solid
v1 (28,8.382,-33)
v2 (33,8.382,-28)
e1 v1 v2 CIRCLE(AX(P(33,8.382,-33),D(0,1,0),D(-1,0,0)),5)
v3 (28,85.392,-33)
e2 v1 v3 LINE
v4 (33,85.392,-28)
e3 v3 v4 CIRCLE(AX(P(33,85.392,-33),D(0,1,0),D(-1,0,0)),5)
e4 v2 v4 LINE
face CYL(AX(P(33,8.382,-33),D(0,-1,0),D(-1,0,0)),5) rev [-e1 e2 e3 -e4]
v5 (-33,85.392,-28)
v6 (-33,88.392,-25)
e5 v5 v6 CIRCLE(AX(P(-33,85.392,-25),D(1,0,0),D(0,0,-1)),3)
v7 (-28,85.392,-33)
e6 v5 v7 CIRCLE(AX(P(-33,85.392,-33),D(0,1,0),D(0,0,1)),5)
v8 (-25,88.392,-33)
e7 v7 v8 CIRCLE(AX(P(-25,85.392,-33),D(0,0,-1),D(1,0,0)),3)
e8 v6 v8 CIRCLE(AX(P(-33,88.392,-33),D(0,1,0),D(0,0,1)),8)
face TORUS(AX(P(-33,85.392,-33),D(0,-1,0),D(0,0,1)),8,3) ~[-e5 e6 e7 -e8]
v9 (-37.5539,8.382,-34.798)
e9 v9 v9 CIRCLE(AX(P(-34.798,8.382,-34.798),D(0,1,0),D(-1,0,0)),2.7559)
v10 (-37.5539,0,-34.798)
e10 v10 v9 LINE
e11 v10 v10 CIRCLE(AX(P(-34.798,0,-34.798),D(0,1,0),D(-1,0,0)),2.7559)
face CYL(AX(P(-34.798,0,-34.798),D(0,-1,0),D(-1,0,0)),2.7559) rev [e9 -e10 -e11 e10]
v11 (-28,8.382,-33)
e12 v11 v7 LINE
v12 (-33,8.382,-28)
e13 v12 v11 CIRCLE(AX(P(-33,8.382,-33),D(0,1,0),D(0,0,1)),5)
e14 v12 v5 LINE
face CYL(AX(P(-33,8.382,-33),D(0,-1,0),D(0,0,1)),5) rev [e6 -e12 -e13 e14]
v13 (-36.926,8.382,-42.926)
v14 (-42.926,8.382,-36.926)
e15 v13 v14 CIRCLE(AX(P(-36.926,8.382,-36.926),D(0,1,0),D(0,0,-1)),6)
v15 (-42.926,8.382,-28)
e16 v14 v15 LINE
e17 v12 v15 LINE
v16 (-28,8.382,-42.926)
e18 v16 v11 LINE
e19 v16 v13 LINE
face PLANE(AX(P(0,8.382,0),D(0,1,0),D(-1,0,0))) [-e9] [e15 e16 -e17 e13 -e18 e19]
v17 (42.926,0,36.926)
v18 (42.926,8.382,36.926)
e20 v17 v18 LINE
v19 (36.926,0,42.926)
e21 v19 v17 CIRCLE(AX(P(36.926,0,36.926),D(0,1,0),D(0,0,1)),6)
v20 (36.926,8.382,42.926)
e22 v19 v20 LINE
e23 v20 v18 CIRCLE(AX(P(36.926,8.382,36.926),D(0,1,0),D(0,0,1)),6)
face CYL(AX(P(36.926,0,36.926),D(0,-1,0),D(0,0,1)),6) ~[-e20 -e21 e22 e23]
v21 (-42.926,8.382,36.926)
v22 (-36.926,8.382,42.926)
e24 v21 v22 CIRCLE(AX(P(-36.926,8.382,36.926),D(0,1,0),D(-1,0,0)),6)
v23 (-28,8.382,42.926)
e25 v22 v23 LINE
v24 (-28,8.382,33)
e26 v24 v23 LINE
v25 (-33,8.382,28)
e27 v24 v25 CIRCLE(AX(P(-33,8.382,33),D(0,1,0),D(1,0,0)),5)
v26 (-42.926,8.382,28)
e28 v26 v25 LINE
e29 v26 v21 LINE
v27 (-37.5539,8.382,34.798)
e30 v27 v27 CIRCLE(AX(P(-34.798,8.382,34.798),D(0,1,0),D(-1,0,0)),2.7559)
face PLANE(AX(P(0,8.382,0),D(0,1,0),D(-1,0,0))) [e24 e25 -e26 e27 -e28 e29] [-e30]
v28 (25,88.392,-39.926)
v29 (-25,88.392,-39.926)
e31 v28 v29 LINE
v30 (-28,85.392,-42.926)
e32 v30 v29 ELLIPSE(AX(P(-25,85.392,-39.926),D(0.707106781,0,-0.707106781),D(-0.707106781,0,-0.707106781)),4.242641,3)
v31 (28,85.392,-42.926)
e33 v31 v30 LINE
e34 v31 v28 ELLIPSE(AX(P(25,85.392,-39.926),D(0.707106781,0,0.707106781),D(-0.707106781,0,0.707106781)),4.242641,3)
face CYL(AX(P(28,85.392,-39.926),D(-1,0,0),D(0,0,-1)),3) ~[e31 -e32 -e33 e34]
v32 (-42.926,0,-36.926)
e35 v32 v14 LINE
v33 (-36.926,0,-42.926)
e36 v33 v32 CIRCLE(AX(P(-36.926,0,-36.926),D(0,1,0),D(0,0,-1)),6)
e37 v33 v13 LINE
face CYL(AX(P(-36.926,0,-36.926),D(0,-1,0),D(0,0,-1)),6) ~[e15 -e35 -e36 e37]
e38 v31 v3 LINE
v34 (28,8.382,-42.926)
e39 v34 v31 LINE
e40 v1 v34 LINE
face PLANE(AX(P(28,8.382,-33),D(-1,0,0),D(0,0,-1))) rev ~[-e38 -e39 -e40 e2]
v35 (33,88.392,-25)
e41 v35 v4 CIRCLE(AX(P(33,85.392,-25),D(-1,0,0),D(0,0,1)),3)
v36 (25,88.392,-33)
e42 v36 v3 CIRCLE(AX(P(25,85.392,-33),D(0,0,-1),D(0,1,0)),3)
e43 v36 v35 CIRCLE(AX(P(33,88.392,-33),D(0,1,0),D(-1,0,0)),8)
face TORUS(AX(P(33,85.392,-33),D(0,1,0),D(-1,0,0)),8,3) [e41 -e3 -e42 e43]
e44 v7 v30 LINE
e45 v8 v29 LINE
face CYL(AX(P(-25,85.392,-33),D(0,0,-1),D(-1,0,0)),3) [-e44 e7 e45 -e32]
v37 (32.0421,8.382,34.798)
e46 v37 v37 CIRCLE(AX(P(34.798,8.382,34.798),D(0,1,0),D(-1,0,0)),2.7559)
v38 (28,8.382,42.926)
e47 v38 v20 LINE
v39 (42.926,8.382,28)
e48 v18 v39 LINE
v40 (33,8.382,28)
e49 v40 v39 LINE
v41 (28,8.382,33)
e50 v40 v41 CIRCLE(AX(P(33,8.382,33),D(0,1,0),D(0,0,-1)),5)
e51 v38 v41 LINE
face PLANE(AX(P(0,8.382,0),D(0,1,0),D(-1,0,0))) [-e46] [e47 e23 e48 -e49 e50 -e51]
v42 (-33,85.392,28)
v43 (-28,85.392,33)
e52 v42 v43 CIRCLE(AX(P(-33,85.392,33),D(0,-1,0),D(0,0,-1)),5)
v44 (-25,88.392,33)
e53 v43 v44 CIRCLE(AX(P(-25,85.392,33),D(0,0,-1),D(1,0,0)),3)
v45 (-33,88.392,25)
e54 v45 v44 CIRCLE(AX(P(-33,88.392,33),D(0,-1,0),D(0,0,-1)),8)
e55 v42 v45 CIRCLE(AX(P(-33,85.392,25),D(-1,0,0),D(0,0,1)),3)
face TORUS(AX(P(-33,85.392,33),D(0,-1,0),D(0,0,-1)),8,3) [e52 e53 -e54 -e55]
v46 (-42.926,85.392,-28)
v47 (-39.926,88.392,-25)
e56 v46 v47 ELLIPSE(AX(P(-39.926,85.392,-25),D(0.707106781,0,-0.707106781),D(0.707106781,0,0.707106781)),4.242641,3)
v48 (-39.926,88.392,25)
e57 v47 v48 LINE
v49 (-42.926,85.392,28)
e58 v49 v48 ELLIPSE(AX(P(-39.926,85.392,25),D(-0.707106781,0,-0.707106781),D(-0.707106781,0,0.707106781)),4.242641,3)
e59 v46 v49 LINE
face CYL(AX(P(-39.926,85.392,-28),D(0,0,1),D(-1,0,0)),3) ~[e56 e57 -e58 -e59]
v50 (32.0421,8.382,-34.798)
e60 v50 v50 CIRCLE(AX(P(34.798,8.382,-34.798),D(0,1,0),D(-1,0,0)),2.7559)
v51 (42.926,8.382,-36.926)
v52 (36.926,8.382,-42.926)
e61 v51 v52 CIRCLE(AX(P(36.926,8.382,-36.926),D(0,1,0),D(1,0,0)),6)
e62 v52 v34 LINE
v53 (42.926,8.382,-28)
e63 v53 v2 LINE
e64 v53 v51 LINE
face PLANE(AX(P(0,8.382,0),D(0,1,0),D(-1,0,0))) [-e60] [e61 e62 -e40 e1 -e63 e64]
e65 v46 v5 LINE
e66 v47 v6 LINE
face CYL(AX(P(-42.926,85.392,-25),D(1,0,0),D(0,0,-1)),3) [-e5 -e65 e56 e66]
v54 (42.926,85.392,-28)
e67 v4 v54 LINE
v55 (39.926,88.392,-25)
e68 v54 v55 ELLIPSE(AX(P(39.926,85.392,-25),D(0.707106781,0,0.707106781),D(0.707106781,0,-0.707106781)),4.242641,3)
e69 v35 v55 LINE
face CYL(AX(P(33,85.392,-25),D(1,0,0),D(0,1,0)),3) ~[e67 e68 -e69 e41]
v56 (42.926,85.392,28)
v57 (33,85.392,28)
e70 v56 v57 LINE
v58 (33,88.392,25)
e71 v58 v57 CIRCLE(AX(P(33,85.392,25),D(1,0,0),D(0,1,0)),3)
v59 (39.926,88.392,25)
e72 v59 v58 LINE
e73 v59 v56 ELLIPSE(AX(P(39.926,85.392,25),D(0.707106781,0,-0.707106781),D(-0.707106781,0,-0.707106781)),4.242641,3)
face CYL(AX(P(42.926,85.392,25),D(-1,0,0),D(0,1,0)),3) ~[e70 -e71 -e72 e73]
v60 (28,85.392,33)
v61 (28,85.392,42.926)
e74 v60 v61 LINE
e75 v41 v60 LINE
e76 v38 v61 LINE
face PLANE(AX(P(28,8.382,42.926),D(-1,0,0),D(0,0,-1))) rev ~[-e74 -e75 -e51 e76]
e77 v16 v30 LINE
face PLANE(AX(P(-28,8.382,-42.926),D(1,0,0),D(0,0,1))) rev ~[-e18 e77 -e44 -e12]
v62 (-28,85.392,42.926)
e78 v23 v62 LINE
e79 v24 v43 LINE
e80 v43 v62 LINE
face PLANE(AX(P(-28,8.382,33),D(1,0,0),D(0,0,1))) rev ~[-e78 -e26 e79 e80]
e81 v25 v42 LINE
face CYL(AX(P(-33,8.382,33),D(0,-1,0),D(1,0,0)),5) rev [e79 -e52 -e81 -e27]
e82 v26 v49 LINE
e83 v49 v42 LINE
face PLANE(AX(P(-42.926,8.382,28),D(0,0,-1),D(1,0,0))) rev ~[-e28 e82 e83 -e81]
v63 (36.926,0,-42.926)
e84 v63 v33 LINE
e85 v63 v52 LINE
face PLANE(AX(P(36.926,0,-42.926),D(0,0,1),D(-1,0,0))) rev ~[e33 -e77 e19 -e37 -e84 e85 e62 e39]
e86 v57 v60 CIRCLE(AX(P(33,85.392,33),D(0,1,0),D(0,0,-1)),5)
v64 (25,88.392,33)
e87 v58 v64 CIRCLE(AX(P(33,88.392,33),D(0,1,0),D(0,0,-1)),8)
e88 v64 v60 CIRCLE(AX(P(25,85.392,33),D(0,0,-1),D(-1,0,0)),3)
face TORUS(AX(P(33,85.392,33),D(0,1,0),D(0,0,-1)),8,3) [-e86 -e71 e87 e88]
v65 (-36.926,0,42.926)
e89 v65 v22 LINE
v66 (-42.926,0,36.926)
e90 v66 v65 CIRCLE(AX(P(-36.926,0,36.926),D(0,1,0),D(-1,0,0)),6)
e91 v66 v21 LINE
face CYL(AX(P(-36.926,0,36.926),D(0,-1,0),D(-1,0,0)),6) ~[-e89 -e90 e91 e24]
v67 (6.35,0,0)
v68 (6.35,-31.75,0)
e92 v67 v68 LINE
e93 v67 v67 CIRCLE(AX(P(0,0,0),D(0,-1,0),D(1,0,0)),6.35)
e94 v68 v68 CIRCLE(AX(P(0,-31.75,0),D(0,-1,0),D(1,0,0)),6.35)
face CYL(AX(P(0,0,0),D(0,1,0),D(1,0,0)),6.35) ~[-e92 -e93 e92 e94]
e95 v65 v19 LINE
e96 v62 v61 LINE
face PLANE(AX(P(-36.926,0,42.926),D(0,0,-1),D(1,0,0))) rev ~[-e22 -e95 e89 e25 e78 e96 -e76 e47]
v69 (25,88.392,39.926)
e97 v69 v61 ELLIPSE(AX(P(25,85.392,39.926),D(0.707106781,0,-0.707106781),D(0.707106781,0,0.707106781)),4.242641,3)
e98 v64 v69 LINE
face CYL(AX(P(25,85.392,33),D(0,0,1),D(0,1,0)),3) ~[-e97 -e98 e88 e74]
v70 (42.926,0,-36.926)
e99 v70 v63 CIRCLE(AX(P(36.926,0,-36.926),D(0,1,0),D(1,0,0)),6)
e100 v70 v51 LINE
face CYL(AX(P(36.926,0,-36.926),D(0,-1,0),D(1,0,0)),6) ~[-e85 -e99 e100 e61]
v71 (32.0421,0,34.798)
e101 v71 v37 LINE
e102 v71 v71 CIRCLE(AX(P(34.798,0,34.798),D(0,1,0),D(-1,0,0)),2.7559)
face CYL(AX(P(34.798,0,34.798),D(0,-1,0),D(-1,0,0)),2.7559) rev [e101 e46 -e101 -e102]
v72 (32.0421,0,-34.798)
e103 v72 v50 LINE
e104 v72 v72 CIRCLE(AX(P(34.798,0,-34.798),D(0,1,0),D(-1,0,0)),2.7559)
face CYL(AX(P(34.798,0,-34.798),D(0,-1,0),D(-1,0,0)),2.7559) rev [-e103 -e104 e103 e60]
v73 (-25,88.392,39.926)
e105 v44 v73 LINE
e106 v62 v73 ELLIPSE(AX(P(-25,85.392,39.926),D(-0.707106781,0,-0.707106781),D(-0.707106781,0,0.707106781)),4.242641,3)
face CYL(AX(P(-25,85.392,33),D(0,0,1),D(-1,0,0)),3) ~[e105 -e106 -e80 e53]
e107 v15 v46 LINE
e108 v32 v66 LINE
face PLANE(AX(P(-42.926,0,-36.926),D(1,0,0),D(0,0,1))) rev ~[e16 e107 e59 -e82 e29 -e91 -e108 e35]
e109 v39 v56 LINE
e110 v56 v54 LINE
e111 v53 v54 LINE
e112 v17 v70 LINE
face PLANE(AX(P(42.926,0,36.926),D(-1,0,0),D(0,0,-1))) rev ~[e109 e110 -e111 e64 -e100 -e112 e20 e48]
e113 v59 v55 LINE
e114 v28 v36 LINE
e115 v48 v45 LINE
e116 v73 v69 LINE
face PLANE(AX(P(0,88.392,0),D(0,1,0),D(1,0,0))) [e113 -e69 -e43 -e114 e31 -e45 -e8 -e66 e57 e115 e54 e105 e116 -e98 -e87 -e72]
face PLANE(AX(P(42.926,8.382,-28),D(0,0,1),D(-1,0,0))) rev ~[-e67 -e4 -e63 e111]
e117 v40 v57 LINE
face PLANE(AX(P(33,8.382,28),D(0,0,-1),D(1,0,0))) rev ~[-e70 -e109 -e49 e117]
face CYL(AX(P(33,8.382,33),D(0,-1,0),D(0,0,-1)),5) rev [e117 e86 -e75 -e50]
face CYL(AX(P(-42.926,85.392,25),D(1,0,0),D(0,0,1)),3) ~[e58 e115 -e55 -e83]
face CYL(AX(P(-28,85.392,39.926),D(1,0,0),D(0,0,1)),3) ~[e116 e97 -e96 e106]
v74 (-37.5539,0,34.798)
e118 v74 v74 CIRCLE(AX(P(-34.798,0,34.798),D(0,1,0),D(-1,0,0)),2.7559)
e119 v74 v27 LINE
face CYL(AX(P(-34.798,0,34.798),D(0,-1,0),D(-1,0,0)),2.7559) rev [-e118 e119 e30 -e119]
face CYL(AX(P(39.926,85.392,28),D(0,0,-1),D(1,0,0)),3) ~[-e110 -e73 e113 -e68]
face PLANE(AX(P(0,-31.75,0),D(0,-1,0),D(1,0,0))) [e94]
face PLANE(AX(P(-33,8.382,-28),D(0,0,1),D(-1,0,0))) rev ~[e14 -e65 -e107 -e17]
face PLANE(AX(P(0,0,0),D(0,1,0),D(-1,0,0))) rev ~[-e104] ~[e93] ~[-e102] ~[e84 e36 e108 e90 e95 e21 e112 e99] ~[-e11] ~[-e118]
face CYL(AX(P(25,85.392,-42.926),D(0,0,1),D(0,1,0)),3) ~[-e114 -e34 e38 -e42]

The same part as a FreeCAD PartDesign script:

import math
import FreeCAD as App
import Part
import Sketcher

V = App.Vector
Q = App.Units.Quantity


def edges_at(feature, points):
    """Names of the edges that pass closest to the given points."""
    edges = feature.Shape.Edges
    near = lambda p: min(range(len(edges)), key=lambda i: edges[i].distToShape(Part.Vertex(*p))[0])
    return sorted({f"Edge{near(p) + 1}" for p in points})

doc = App.newDocument("Part")
body = doc.addObject("PartDesign::Body", "Body")

sketch1 = body.newObject("Sketcher::SketchObject", "Sketch")
sketch1.AttachmentSupport = (doc.getObject("XZ_Plane"), [""])
sketch1.MapMode = "FlatFace"
sketch1.addGeometry([
    Part.ArcOfCircle(Part.Circle(V(-36.926, 36.926, 0), V(0, 0, 1), 6), math.radians(90), math.radians(180)),
    Part.LineSegment(V(-36.926, 42.926, 0), V(36.926, 42.926, 0)),
    Part.ArcOfCircle(Part.Circle(V(36.926, 36.926, 0), V(0, 0, 1), 6), math.radians(0), math.radians(90)),
    Part.LineSegment(V(42.926, 36.926, 0), V(42.926, -36.926, 0)),
    Part.ArcOfCircle(Part.Circle(V(36.926, -36.926, 0), V(0, 0, 1), 6), math.radians(-90), math.radians(0)),
    Part.LineSegment(V(36.926, -42.926, 0), V(-36.926, -42.926, 0)),
    Part.ArcOfCircle(Part.Circle(V(-36.926, -36.926, 0), V(0, 0, 1), 6), math.radians(180), math.radians(270)),
    Part.LineSegment(V(-42.926, -36.926, 0), V(-42.926, 36.926, 0)),
    Part.Circle(V(34.798, -34.798, 0), V(0, 0, 1), 2.7559),
    Part.Circle(V(-34.798, -34.798, 0), V(0, 0, 1), 2.7559),
    Part.Circle(V(34.798, 34.798, 0), V(0, 0, 1), 2.7559),
    Part.Circle(V(-34.798, 34.798, 0), V(0, 0, 1), 2.7559),
], False)
sketch1.addConstraint([
    Sketcher.Constraint("Tangent", 0, 1, 1, 1),
    Sketcher.Constraint("Tangent", 1, 2, 2, 2),
    Sketcher.Constraint("Tangent", 2, 1, 3, 1),
    Sketcher.Constraint("Tangent", 3, 2, 4, 2),
    Sketcher.Constraint("Tangent", 4, 1, 5, 1),
    Sketcher.Constraint("Tangent", 5, 2, 6, 2),
    Sketcher.Constraint("Tangent", 6, 1, 7, 1),
    Sketcher.Constraint("Tangent", 7, 2, 0, 2),
    Sketcher.Constraint("Horizontal", 1),
    Sketcher.Constraint("Vertical", 3),
    Sketcher.Constraint("Horizontal", 5),
    Sketcher.Constraint("Vertical", 7),
    Sketcher.Constraint("Equal", 0, 2),
    Sketcher.Constraint("Equal", 2, 4),
    Sketcher.Constraint("Equal", 4, 6),
    Sketcher.Constraint("Equal", 8, 9),
    Sketcher.Constraint("Equal", 9, 10),
    Sketcher.Constraint("Equal", 10, 11),
    Sketcher.Constraint("Symmetric", 0, 3, 4, 3, -1, 1),
    Sketcher.Constraint("Symmetric", 9, 3, 10, 3, -1, 1),
    Sketcher.Constraint("Symmetric", 8, 3, 11, 3, -1, 1),
    Sketcher.Constraint("Symmetric", 8, 3, 9, 3, -2),
    Sketcher.Constraint("Equal", 5, 3),
    Sketcher.Constraint("Diameter", 8, Q("0.217 in")),
    Sketcher.Constraint("DistanceX", -1, 1, 8, 3, Q("1.37 in")),
    Sketcher.Constraint("DistanceY", 8, 3, -1, 1, Q("1.37 in")),
    Sketcher.Constraint("Radius", 0, 6.0),
    Sketcher.Constraint("DistanceY", -1, 1, 0, 1, Q("1.69 in")),
])
pad1 = body.newObject("PartDesign::Pad", "Pad")
pad1.Profile = sketch1
pad1.Length = Q("0.33 in")
pad1.Reversed = True

sketch2 = body.newObject("Sketcher::SketchObject", "Sketch001")
sketch2.AttachmentSupport = (doc.getObject("XZ_Plane"), [""])
sketch2.MapMode = "FlatFace"
sketch2.AttachmentOffset = App.Placement(V(0, 0, -0.33 * 25.4), App.Rotation())
sketch2.addGeometry([
    Part.LineSegment(V(33, 28, 0), V(42.926, 28, 0)),
    Part.LineSegment(V(42.926, 28, 0), V(42.926, -28, 0)),
    Part.LineSegment(V(42.926, -28, 0), V(33, -28, 0)),
    Part.ArcOfCircle(Part.Circle(V(33, -33, 0), V(0, 0, 1), 5), math.radians(90), math.radians(180)),
    Part.LineSegment(V(28, -33, 0), V(28, -42.926, 0)),
    Part.LineSegment(V(28, -42.926, 0), V(-28, -42.926, 0)),
    Part.LineSegment(V(-28, -42.926, 0), V(-28, -33, 0)),
    Part.ArcOfCircle(Part.Circle(V(-33, -33, 0), V(0, 0, 1), 5), math.radians(0), math.radians(90)),
    Part.LineSegment(V(-33, -28, 0), V(-42.926, -28, 0)),
    Part.LineSegment(V(-42.926, -28, 0), V(-42.926, 28, 0)),
    Part.LineSegment(V(-42.926, 28, 0), V(-33, 28, 0)),
    Part.ArcOfCircle(Part.Circle(V(-33, 33, 0), V(0, 0, 1), 5), math.radians(-90), math.radians(0)),
    Part.LineSegment(V(-28, 33, 0), V(-28, 42.926, 0)),
    Part.LineSegment(V(-28, 42.926, 0), V(28, 42.926, 0)),
    Part.LineSegment(V(28, 42.926, 0), V(28, 33, 0)),
    Part.ArcOfCircle(Part.Circle(V(33, 33, 0), V(0, 0, 1), 5), math.radians(180), math.radians(270)),
], False)
sketch2.addConstraint([
    Sketcher.Constraint("Coincident", 0, 2, 1, 1),
    Sketcher.Constraint("Coincident", 1, 2, 2, 1),
    Sketcher.Constraint("Tangent", 2, 2, 3, 1),
    Sketcher.Constraint("Tangent", 3, 2, 4, 1),
    Sketcher.Constraint("Coincident", 4, 2, 5, 1),
    Sketcher.Constraint("Coincident", 5, 2, 6, 1),
    Sketcher.Constraint("Tangent", 6, 2, 7, 1),
    Sketcher.Constraint("Tangent", 7, 2, 8, 1),
    Sketcher.Constraint("Coincident", 8, 2, 9, 1),
    Sketcher.Constraint("Coincident", 9, 2, 10, 1),
    Sketcher.Constraint("Tangent", 10, 2, 11, 1),
    Sketcher.Constraint("Tangent", 11, 2, 12, 1),
    Sketcher.Constraint("Coincident", 12, 2, 13, 1),
    Sketcher.Constraint("Coincident", 13, 2, 14, 1),
    Sketcher.Constraint("Tangent", 14, 2, 15, 1),
    Sketcher.Constraint("Tangent", 15, 2, 0, 1),
    Sketcher.Constraint("Horizontal", 0),
    Sketcher.Constraint("Vertical", 1),
    Sketcher.Constraint("Horizontal", 2),
    Sketcher.Constraint("Vertical", 4),
    Sketcher.Constraint("Horizontal", 5),
    Sketcher.Constraint("Vertical", 6),
    Sketcher.Constraint("Horizontal", 8),
    Sketcher.Constraint("Vertical", 9),
    Sketcher.Constraint("Horizontal", 10),
    Sketcher.Constraint("Vertical", 12),
    Sketcher.Constraint("Horizontal", 13),
    Sketcher.Constraint("Vertical", 14),
    Sketcher.Constraint("Equal", 3, 7),
    Sketcher.Constraint("Equal", 7, 11),
    Sketcher.Constraint("Equal", 11, 15),
    Sketcher.Constraint("Symmetric", 3, 3, 11, 3, -1, 1),
    Sketcher.Constraint("Symmetric", 7, 3, 15, 3, -1, 1),
    Sketcher.Constraint("Symmetric", 3, 3, 7, 3, -2),
    Sketcher.Constraint("Equal", 2, 8),
    Sketcher.Constraint("Equal", 13, 1),
    Sketcher.Constraint("Equal", 10, 4),
    Sketcher.Constraint("Equal", 6, 12),
    Sketcher.Constraint("Radius", 3, 5.0),
    Sketcher.Constraint("DistanceX", 5, 2, 5, 1, 56.0),
    Sketcher.Constraint("DistanceX", -1, 1, 0, 2, Q("1.69 in")),
])
pad2 = body.newObject("PartDesign::Pad", "Pad001")
pad2.Profile = sketch2
pad2.Length = Q("3.15 in")
pad2.Reversed = True
doc.recompute()

fillet = body.newObject("PartDesign::Fillet", "Fillet")
fillet.Base = (pad2, edges_at(pad2, [
    (29.465, 88.392, 29.465),
    (28, 88.392, 37.963),
    (37.963, 88.392, 28),
    (42.926, 88.392, 0),
    (0, 88.392, -42.926),
    (-42.926, 88.392, 0),
    (-28, 88.392, 37.963),
    (-37.963, 88.392, 28),
    (-29.465, 88.392, 29.465),
    (0, 88.392, 42.926),
    (29.465, 88.392, -29.465),
    (28, 88.392, -37.963),
    (37.963, 88.392, -28),
    (-29.465, 88.392, -29.465),
    (-28, 88.392, -37.963),
    (-37.963, 88.392, -28),
]))
fillet.Radius = Q("0.1181102 in")

sketch3 = body.newObject("Sketcher::SketchObject", "Sketch002")
sketch3.AttachmentSupport = (doc.getObject("XZ_Plane"), [""])
sketch3.MapMode = "FlatFace"
sketch3.addGeometry(Part.Circle(V(0, 0, 0), V(0, 0, 1), 6.35), False)
sketch3.addConstraint([
    Sketcher.Constraint("Coincident", 0, 3, -1, 1),
    Sketcher.Constraint("Diameter", 0, Q("0.5 in")),
])
pad3 = body.newObject("PartDesign::Pad", "Pad002")
pad3.Profile = sketch3
pad3.Length = Q("1.25 in")

doc.recompute()
